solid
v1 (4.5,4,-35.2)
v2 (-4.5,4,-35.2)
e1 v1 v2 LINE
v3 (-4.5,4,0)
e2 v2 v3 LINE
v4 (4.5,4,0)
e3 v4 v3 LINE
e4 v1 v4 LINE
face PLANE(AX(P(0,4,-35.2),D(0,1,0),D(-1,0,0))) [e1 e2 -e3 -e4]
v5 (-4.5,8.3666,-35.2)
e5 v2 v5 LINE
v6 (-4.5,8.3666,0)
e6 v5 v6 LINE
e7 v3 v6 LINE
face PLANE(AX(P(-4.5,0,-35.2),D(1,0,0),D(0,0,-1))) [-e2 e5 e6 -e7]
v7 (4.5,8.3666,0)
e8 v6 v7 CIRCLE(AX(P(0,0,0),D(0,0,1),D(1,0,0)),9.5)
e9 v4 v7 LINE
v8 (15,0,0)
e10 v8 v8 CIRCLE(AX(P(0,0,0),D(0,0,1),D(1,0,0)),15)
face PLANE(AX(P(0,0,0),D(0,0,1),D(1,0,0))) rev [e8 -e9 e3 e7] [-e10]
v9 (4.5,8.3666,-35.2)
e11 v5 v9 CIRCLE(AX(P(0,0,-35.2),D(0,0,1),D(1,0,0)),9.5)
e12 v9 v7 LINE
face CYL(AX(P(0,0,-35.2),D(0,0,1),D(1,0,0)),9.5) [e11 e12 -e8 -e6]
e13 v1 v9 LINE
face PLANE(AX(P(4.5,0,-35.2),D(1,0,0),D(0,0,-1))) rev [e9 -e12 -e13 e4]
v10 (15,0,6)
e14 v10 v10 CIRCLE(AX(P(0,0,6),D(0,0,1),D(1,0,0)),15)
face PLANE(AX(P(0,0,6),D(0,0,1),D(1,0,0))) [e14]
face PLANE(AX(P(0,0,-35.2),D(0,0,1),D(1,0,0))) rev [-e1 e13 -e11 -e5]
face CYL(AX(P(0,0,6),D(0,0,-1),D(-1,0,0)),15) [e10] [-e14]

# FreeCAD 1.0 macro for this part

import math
import FreeCAD as App
import Part
import Sketcher
Q = App.Units.Quantity

doc = App.newDocument("Part")
body = doc.addObject("PartDesign::Body", "Body")

# Sketch on XY plane
sketch1 = body.newObject("Sketcher::SketchObject", "Sketch")
sketch1.AttachmentSupport = (doc.getObject("XY_Plane"), [""])
sketch1.MapMode = "FlatFace"
sketch1.addGeometry(Part.Circle(App.Vector(0, 0, 0), App.Vector(0, 0, 1), 15), False)
sketch1.addConstraint(Sketcher.Constraint("Coincident", 0, 3, -1, 1))
sketch1.addConstraint(Sketcher.Constraint("Diameter", 0, Q("30 mm")))
pad1 = body.newObject("PartDesign::Pad", "Pad")
pad1.Profile = sketch1
pad1.Length = 6

# Sketch on XY plane
sketch2 = body.newObject("Sketcher::SketchObject", "Sketch001")
sketch2.AttachmentSupport = (doc.getObject("XY_Plane"), [""])
sketch2.MapMode = "FlatFace"
sketch2.addGeometry(Part.LineSegment(App.Vector(4.5, 8.4, 0), App.Vector(4.5, 4, 0)), False)
sketch2.addGeometry(Part.LineSegment(App.Vector(4.5, 4, 0), App.Vector(-4.5, 4, 0)), False)
sketch2.addGeometry(Part.LineSegment(App.Vector(-4.5, 4, 0), App.Vector(-4.5, 8.4, 0)), False)
sketch2.addGeometry(Part.ArcOfCircle(Part.Circle(App.Vector(0, 0, 0), App.Vector(0, 0, 1), 9.5), math.radians(118), math.radians(360)), False)
sketch2.addGeometry(Part.ArcOfCircle(Part.Circle(App.Vector(0, 0, 0), App.Vector(0, 0, 1), 9.5), math.radians(0), math.radians(62)), False)
sketch2.addConstraint(Sketcher.Constraint("Coincident", 0, 2, 1, 1))
sketch2.addConstraint(Sketcher.Constraint("Coincident", 1, 2, 2, 1))
sketch2.addConstraint(Sketcher.Constraint("Coincident", 2, 2, 3, 1))
sketch2.addConstraint(Sketcher.Constraint("Tangent", 3, 2, 4, 1))
sketch2.addConstraint(Sketcher.Constraint("Coincident", 4, 2, 0, 1))
sketch2.addConstraint(Sketcher.Constraint("Vertical", 0))
sketch2.addConstraint(Sketcher.Constraint("Horizontal", 1))
sketch2.addConstraint(Sketcher.Constraint("Vertical", 2))
sketch2.addConstraint(Sketcher.Constraint("Coincident", 3, 3, -1, 1))
sketch2.addConstraint(Sketcher.Constraint("Equal", 3, 4))
sketch2.addConstraint(Sketcher.Constraint("PointOnObject", 3, 2, -1))
sketch2.addConstraint(Sketcher.Constraint("Horizontal", 2, 2, 4, 2))
sketch2.addConstraint(Sketcher.Constraint("Radius", 3, Q("9.5 mm")))
sketch2.addConstraint(Sketcher.Constraint("DistanceX", 1, 2, 1, 1, Q("9 mm")))
sketch2.addConstraint(Sketcher.Constraint("DistanceY", -1, 1, 0, 2, Q("4 mm")))
pad2 = body.newObject("PartDesign::Pad", "Pad001")
pad2.Profile = sketch2
pad2.Length = 35.2
pad2.Reversed = True

doc.recompute()
